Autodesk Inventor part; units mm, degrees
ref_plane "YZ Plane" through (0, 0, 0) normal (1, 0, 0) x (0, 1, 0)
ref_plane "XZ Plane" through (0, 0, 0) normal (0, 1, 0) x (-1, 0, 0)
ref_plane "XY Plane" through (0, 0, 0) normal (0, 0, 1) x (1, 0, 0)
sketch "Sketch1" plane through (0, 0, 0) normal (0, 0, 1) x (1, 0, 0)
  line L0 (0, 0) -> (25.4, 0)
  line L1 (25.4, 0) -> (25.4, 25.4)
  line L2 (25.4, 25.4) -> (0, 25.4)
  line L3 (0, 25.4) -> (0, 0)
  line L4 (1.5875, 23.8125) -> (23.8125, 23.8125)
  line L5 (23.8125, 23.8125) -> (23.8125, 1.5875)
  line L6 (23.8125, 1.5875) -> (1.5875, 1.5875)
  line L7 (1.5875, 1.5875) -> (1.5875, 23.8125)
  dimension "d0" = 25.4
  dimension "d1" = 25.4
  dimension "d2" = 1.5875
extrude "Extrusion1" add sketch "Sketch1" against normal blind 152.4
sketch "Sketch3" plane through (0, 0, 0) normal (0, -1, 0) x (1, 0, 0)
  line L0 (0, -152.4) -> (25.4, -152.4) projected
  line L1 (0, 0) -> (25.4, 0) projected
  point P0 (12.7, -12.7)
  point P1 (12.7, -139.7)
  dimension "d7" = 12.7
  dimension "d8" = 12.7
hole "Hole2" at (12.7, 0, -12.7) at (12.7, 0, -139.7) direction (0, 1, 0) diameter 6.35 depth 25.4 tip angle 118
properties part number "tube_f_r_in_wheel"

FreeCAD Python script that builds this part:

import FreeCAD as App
import Part
import Sketcher
Q = App.Units.Quantity


def add_polygon(sketch, points):
    """Adds a closed chain of lines whose ends are joined by coincident constraints."""
    first, n = sketch.GeometryCount, len(points)
    for a, b in zip(points, points[1:] + points[:1]):
        sketch.addGeometry(Part.LineSegment(App.Vector(*a, 0), App.Vector(*b, 0)), False)
    for i in range(n):
        sketch.addConstraint(Sketcher.Constraint("Coincident", first + i, 2, first + (i + 1) % n, 1))

doc = App.newDocument("Part")
params = doc.addObject("Spreadsheet::Sheet", "Params")
for row, (alias, value) in enumerate([
    ("sketch1_width", "1 in"),
    ("pad1_length", "6 in"),
    ("sketch2_diameter", "0.25 in"),
    ("hole_diameter", "0.25 in"),
    ("hole_depth", "1 in"),
], start=1):
    params.set(f"A{row}", alias)
    params.set(f"B{row}", "=" + value)
    params.setAlias(f"B{row}", alias)

body = doc.addObject("PartDesign::Body", "Body")

# Sketch on XY plane
sketch1 = body.newObject("Sketcher::SketchObject", "Sketch")
sketch1.AttachmentSupport = (doc.getObject("XY_Plane"), [""])
sketch1.MapMode = "FlatFace"
add_polygon(sketch1, [(0, 25), (0, 0), (25, 0), (25, 25)])  # lines 0-3
add_polygon(sketch1, [(2, 2), (2, 24), (24, 24), (24, 2)])  # lines 4-7
sketch1.addConstraint([
    Sketcher.Constraint("Vertical", 0),
    Sketcher.Constraint("Horizontal", 1),
    Sketcher.Constraint("Vertical", 2),
    Sketcher.Constraint("Horizontal", 3),
    Sketcher.Constraint("Vertical", 4),
    Sketcher.Constraint("Horizontal", 5),
    Sketcher.Constraint("Vertical", 6),
    Sketcher.Constraint("Horizontal", 7),
    Sketcher.Constraint("Coincident", 0, 2, -1, 1),
    Sketcher.Constraint("Equal", 3, 0),
    Sketcher.Constraint("Equal", 7, 4),
    Sketcher.Constraint("DistanceX", 1, 1, 1, 2, Q("1 in")),
    Sketcher.Constraint("DistanceX", -1, 1, 4, 2, Q("0.0625 in")),
    Sketcher.Constraint("DistanceY", -1, 1, 6, 2, Q("0.0625 in")),
    Sketcher.Constraint("DistanceY", 4, 2, 3, 2, Q("0.0625 in")),
])
sketch1.setExpression("Constraints[19]", "Params.sketch1_width")
pad1 = body.newObject("PartDesign::Pad", "Pad")
pad1.Profile = sketch1
pad1.setExpression("Length", "Params.pad1_length")
pad1.Reversed = True

# Sketch on XZ plane
sketch2 = body.newObject("Sketcher::SketchObject", "Sketch001")
sketch2.AttachmentSupport = (doc.getObject("XZ_Plane"), [""])
sketch2.MapMode = "FlatFace"
sketch2.addGeometry([
    Part.Circle(App.Vector(12.7, -12.7, 0), App.Vector(0, 0, 1), 3.2),
    Part.Circle(App.Vector(12.7, -139.7, 0), App.Vector(0, 0, 1), 3.2),
], False)
sketch2.addConstraint([
    Sketcher.Constraint("Equal", 0, 1),
    Sketcher.Constraint("Vertical", 0, 3, 1, 3),
    Sketcher.Constraint("Diameter", 0, Q("0.25 in")),
    Sketcher.Constraint("DistanceY", 1, 3, 0, 3, Q("5 in")),
    Sketcher.Constraint("DistanceX", -1, 1, 0, 3, Q("0.5 in")),
    Sketcher.Constraint("DistanceY", 0, 3, -1, 1, Q("0.5 in")),
])
sketch2.setExpression("Constraints[2]", "Params.sketch2_diameter")
doc.recompute()
hole = body.newObject("PartDesign::Hole", "Hole")
hole.Profile = sketch2
hole.ThreadType = "None"
hole.setExpression("Diameter", "Params.hole_diameter")
hole.DepthType = "Dimension"
hole.setExpression("Depth", "Params.hole_depth")
hole.DrillPoint = "Angled"
hole.DrillPointAngle = 118

doc.recompute()
